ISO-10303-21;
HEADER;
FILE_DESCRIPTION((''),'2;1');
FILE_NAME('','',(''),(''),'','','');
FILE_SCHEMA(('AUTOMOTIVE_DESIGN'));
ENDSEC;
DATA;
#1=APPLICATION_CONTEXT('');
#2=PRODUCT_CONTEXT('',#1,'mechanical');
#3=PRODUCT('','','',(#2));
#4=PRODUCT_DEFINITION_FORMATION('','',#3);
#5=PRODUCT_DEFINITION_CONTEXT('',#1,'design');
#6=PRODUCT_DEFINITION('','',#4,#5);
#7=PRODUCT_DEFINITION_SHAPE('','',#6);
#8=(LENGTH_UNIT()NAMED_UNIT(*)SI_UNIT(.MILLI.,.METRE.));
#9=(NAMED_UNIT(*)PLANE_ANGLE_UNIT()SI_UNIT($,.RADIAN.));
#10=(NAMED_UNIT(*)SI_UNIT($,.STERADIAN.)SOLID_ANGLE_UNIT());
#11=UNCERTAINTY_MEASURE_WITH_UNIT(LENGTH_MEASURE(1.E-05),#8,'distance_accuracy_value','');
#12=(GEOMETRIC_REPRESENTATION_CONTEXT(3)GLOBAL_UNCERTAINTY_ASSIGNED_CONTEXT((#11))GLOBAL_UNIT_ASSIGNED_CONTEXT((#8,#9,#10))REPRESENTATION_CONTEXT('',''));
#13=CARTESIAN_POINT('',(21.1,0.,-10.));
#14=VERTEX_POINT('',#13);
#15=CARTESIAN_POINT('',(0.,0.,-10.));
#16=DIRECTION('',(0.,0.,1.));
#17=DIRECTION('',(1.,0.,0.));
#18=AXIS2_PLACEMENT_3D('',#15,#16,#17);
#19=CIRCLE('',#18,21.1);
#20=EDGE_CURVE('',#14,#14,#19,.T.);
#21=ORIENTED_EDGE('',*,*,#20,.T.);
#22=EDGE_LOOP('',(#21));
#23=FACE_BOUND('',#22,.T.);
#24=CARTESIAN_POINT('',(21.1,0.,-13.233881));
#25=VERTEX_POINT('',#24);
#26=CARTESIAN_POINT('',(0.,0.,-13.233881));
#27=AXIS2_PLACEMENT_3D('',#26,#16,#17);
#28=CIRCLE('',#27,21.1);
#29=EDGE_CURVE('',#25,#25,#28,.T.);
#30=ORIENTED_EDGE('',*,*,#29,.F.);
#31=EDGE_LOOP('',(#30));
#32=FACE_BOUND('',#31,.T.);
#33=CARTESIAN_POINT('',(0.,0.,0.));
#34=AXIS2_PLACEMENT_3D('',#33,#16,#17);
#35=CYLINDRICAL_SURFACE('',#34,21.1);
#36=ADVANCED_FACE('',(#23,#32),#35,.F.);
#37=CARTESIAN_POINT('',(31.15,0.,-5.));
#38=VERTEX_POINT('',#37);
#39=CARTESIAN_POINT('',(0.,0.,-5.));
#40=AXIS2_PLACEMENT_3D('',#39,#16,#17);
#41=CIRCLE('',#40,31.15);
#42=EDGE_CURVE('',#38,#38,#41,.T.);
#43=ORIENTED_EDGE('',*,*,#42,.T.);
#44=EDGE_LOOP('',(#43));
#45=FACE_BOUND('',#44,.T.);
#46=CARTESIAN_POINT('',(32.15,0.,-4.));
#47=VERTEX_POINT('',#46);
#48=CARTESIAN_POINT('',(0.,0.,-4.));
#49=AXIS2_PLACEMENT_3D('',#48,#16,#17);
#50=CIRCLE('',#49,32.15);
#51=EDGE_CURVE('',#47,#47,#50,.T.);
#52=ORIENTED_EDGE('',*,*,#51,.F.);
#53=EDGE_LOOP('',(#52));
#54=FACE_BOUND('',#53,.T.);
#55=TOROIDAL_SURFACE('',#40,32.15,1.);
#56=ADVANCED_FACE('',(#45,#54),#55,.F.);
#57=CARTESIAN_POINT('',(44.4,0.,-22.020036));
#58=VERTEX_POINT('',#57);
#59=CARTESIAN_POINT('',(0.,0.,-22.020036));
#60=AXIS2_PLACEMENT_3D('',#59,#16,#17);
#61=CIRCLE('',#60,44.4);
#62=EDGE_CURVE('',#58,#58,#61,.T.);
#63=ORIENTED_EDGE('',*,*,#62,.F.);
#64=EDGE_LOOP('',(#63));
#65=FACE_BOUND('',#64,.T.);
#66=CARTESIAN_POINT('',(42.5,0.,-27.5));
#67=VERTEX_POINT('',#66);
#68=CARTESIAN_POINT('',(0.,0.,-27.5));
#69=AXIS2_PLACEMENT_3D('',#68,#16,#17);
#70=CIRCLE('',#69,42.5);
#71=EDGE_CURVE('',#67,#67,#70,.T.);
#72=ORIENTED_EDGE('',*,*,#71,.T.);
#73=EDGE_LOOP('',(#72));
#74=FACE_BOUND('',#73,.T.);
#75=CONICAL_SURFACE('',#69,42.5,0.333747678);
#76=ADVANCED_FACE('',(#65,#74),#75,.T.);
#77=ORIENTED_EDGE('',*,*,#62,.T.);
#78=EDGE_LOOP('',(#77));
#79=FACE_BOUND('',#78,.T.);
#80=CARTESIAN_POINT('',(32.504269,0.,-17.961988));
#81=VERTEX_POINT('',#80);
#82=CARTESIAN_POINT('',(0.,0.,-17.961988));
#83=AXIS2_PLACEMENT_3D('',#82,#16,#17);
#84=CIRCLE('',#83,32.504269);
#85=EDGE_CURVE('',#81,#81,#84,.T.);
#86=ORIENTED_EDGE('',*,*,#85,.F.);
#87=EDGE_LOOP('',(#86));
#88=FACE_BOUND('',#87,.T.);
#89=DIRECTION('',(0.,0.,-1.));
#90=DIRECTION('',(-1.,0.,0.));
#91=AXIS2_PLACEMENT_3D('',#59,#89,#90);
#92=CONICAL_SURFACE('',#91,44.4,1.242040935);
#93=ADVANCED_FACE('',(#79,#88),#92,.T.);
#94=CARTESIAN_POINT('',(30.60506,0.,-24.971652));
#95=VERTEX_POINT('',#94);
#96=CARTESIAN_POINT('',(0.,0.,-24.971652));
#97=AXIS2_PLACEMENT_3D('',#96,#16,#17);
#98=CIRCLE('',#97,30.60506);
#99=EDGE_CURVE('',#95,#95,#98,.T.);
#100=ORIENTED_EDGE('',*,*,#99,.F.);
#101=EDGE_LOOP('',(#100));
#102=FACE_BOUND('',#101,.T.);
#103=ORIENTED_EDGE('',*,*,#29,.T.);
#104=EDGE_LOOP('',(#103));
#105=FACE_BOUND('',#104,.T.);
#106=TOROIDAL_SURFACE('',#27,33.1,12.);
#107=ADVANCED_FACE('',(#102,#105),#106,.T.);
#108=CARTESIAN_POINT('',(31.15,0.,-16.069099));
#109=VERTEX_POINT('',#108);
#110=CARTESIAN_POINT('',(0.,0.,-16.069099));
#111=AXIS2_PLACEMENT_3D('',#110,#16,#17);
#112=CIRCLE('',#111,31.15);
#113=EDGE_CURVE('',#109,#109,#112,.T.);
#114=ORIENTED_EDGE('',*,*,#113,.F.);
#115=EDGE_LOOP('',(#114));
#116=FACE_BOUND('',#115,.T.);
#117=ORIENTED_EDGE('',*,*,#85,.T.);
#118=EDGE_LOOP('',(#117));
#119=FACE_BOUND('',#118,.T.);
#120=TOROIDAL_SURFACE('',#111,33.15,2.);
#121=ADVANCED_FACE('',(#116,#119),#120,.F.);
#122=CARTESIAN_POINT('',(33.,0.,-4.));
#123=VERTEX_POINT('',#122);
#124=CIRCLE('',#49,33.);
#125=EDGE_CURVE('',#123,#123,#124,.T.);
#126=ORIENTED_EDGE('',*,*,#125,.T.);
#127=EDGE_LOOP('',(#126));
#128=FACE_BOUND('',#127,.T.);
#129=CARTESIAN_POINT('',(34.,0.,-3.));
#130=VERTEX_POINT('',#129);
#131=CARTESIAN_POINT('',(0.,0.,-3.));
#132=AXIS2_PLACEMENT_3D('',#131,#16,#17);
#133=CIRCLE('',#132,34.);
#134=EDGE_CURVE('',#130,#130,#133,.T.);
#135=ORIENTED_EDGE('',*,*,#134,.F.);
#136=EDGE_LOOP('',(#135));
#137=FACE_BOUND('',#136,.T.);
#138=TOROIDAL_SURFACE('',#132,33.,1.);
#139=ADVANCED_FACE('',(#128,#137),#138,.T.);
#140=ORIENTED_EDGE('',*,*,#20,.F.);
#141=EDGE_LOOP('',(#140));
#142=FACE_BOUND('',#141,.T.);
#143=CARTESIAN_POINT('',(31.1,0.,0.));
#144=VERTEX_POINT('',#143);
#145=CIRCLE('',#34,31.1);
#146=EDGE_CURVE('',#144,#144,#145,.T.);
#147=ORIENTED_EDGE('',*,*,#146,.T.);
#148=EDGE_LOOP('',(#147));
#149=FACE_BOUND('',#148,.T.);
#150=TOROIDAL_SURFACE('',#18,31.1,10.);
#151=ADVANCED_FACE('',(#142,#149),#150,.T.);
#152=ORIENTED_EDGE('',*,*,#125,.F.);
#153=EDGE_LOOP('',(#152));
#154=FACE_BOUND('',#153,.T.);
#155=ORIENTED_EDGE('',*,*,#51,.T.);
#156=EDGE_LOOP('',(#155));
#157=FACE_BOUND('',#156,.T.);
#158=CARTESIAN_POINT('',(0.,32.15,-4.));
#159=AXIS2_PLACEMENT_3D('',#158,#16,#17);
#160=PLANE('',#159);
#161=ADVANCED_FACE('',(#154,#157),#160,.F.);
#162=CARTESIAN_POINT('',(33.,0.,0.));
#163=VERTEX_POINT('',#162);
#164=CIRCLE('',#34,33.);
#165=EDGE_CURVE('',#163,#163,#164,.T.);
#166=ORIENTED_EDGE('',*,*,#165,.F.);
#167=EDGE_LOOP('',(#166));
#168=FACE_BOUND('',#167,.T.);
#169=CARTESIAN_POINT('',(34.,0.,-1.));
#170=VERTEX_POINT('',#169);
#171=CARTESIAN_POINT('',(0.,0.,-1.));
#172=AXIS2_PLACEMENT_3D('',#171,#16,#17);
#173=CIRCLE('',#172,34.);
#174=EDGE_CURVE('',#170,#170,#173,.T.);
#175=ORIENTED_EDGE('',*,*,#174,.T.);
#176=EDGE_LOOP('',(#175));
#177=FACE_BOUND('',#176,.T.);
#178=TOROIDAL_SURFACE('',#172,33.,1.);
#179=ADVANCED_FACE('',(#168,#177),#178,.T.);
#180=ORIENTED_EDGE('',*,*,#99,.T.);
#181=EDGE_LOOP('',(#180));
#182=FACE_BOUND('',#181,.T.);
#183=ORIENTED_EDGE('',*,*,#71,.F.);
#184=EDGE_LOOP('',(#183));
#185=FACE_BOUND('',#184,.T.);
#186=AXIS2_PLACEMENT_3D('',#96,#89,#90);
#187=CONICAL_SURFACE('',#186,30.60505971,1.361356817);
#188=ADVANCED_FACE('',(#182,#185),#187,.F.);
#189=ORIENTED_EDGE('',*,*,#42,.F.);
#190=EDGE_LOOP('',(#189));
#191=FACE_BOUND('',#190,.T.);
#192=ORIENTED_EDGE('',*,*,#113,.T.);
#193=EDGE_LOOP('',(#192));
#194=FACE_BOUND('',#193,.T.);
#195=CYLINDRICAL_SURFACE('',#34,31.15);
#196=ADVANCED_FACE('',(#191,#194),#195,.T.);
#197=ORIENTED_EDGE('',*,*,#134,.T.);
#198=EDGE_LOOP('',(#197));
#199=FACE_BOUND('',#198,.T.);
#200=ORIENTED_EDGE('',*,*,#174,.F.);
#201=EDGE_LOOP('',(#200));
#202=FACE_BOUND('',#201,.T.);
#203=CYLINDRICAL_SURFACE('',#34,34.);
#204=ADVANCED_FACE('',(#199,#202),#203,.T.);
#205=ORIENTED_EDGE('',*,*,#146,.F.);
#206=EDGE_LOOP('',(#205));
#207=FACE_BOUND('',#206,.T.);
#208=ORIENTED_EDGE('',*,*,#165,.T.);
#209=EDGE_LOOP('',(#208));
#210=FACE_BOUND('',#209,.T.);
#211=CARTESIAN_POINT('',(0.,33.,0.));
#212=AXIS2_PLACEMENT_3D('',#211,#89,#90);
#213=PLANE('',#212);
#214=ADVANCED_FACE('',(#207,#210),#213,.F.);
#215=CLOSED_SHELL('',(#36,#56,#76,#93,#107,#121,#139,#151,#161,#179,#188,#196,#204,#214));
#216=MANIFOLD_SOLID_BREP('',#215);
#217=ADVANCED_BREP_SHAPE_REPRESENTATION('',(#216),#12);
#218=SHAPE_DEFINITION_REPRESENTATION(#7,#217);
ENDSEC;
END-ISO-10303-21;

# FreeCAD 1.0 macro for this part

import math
import FreeCAD as App
import Part
import Sketcher
Q = App.Units.Quantity

doc = App.newDocument("Part")
params = doc.addObject("Spreadsheet::Sheet", "Params")
for row, (alias, value) in enumerate([
    ("sketch1_radius", "10 mm"),
    ("sketch1_radius2", "12 mm"),
    ("sketch1_radius3", "2 mm"),
    ("sketch1_radius4", "1 mm"),
    ("sketch1_height", "2 mm"),
    ("revolution_angle", "360 deg"),
], start=1):
    params.set(f"A{row}", alias)
    params.set(f"B{row}", "=" + value)
    params.setAlias(f"B{row}", alias)

body = doc.addObject("PartDesign::Body", "Body")

sketch1 = doc.addObject("Sketcher::SketchObject", "Sketch")
body.addObject(sketch1)
sketch1.AttachmentSupport = (doc.YZ_Plane, [""])
sketch1.MapMode = "FlatFace"
sketch1.addGeometry([
    Part.LineSegment(App.Vector(33, 0, 0), App.Vector(31.1, 0, 0)),
    Part.ArcOfCircle(Part.Circle(App.Vector(31.1, -10, 0), App.Vector(0, 0, 1), 10), math.radians(90), math.radians(180)),
    Part.LineSegment(App.Vector(21.1, -10, 0), App.Vector(21.1, -13.2, 0)),
    Part.ArcOfCircle(Part.Circle(App.Vector(33.1, -13.2, 0), App.Vector(0, 0, 1), 12), math.radians(-180), math.radians(-102)),
    Part.LineSegment(App.Vector(30.6, -25, 0), App.Vector(42.5, -27.5, 0)),
    Part.LineSegment(App.Vector(42.5, -27.5, 0), App.Vector(44.4, -22, 0)),
    Part.LineSegment(App.Vector(44.4, -22, 0), App.Vector(32.5, -18, 0)),
    Part.ArcOfCircle(Part.Circle(App.Vector(33.2, -16.1, 0), App.Vector(0, 0, 1), 2), math.radians(180), math.radians(251)),
    Part.LineSegment(App.Vector(31.1, -16.1, 0), App.Vector(31.1, -5, 0)),
    Part.ArcOfCircle(Part.Circle(App.Vector(32.2, -5, 0), App.Vector(0, 0, 1), 1), math.radians(90), math.radians(180)),
    Part.LineSegment(App.Vector(32.1, -4, 0), App.Vector(33, -4, 0)),
    Part.ArcOfCircle(Part.Circle(App.Vector(33, -3, 0), App.Vector(0, 0, 1), 1), math.radians(-90), math.radians(0)),
    Part.LineSegment(App.Vector(34, -3, 0), App.Vector(34, -1, 0)),
    Part.ArcOfCircle(Part.Circle(App.Vector(33, -1, 0), App.Vector(0, 0, 1), 1), math.radians(0), math.radians(90)),
], False)
sketch1.addConstraint([
    Sketcher.Constraint("Tangent", 0, 2, 1, 1),
    Sketcher.Constraint("Tangent", 1, 2, 2, 1),
    Sketcher.Constraint("Tangent", 2, 2, 3, 1),
    Sketcher.Constraint("Tangent", 3, 2, 4, 1),
    Sketcher.Constraint("Coincident", 4, 2, 5, 1),
    Sketcher.Constraint("Coincident", 5, 2, 6, 1),
    Sketcher.Constraint("Tangent", 6, 2, 7, 2),
    Sketcher.Constraint("Tangent", 7, 1, 8, 1),
    Sketcher.Constraint("Tangent", 8, 2, 9, 2),
    Sketcher.Constraint("Tangent", 9, 1, 10, 1),
    Sketcher.Constraint("Tangent", 10, 2, 11, 1),
    Sketcher.Constraint("Tangent", 11, 2, 12, 1),
    Sketcher.Constraint("Tangent", 12, 2, 13, 1),
    Sketcher.Constraint("Tangent", 13, 2, 0, 1),
    Sketcher.Constraint("Horizontal", 0),
    Sketcher.Constraint("Vertical", 2),
    Sketcher.Constraint("Vertical", 8),
    Sketcher.Constraint("Horizontal", 10),
    Sketcher.Constraint("Vertical", 12),
    Sketcher.Constraint("Equal", 9, 11),
    Sketcher.Constraint("Equal", 11, 13),
    Sketcher.Constraint("PointOnObject", 0, 2, -1),
    Sketcher.Constraint("Radius", 1, Q("10 mm")),
    Sketcher.Constraint("Radius", 3, Q("12 mm")),
    Sketcher.Constraint("Radius", 7, Q("2 mm")),
    Sketcher.Constraint("Radius", 9, Q("1 mm")),
    Sketcher.Constraint("DistanceY", 12, 1, 12, 2, Q("2 mm")),
    Sketcher.Constraint("Angle", 4, Q("-12 deg")),
    Sketcher.Constraint("DistanceX", 0, 2, 0, 1, Q("1.9 mm")),
    Sketcher.Constraint("DistanceX", -1, 1, 11, 3, Q("33 mm")),
    Sketcher.Constraint("Distance", 5, Q("5.8 mm")),
    Sketcher.Constraint("DistanceX", 10, 1, 10, 2, Q("0.85 mm")),
    Sketcher.Constraint("DistanceX", -1, 1, 4, 2, Q("42.5 mm")),
    Sketcher.Constraint("DistanceY", 4, 2, -1, 1, Q("27.5 mm")),
    Sketcher.Constraint("DistanceX", -1, 1, 5, 2, Q("44.4 mm")),
    Sketcher.Constraint("DistanceY", 8, 1, 8, 2, Q("11.069099 mm")),
])
sketch1.setExpression("Constraints[22]", "Params.sketch1_radius")
sketch1.setExpression("Constraints[23]", "Params.sketch1_radius2")
sketch1.setExpression("Constraints[24]", "Params.sketch1_radius3")
sketch1.setExpression("Constraints[25]", "Params.sketch1_radius4")
sketch1.setExpression("Constraints[26]", "Params.sketch1_height")
revolution = doc.addObject("PartDesign::Revolution", "Revolution")
body.addObject(revolution)
revolution.Profile = sketch1
revolution.ReferenceAxis = (sketch1, ["V_Axis"])
revolution.setExpression("Angle", "Params.revolution_angle")

doc.recompute()
